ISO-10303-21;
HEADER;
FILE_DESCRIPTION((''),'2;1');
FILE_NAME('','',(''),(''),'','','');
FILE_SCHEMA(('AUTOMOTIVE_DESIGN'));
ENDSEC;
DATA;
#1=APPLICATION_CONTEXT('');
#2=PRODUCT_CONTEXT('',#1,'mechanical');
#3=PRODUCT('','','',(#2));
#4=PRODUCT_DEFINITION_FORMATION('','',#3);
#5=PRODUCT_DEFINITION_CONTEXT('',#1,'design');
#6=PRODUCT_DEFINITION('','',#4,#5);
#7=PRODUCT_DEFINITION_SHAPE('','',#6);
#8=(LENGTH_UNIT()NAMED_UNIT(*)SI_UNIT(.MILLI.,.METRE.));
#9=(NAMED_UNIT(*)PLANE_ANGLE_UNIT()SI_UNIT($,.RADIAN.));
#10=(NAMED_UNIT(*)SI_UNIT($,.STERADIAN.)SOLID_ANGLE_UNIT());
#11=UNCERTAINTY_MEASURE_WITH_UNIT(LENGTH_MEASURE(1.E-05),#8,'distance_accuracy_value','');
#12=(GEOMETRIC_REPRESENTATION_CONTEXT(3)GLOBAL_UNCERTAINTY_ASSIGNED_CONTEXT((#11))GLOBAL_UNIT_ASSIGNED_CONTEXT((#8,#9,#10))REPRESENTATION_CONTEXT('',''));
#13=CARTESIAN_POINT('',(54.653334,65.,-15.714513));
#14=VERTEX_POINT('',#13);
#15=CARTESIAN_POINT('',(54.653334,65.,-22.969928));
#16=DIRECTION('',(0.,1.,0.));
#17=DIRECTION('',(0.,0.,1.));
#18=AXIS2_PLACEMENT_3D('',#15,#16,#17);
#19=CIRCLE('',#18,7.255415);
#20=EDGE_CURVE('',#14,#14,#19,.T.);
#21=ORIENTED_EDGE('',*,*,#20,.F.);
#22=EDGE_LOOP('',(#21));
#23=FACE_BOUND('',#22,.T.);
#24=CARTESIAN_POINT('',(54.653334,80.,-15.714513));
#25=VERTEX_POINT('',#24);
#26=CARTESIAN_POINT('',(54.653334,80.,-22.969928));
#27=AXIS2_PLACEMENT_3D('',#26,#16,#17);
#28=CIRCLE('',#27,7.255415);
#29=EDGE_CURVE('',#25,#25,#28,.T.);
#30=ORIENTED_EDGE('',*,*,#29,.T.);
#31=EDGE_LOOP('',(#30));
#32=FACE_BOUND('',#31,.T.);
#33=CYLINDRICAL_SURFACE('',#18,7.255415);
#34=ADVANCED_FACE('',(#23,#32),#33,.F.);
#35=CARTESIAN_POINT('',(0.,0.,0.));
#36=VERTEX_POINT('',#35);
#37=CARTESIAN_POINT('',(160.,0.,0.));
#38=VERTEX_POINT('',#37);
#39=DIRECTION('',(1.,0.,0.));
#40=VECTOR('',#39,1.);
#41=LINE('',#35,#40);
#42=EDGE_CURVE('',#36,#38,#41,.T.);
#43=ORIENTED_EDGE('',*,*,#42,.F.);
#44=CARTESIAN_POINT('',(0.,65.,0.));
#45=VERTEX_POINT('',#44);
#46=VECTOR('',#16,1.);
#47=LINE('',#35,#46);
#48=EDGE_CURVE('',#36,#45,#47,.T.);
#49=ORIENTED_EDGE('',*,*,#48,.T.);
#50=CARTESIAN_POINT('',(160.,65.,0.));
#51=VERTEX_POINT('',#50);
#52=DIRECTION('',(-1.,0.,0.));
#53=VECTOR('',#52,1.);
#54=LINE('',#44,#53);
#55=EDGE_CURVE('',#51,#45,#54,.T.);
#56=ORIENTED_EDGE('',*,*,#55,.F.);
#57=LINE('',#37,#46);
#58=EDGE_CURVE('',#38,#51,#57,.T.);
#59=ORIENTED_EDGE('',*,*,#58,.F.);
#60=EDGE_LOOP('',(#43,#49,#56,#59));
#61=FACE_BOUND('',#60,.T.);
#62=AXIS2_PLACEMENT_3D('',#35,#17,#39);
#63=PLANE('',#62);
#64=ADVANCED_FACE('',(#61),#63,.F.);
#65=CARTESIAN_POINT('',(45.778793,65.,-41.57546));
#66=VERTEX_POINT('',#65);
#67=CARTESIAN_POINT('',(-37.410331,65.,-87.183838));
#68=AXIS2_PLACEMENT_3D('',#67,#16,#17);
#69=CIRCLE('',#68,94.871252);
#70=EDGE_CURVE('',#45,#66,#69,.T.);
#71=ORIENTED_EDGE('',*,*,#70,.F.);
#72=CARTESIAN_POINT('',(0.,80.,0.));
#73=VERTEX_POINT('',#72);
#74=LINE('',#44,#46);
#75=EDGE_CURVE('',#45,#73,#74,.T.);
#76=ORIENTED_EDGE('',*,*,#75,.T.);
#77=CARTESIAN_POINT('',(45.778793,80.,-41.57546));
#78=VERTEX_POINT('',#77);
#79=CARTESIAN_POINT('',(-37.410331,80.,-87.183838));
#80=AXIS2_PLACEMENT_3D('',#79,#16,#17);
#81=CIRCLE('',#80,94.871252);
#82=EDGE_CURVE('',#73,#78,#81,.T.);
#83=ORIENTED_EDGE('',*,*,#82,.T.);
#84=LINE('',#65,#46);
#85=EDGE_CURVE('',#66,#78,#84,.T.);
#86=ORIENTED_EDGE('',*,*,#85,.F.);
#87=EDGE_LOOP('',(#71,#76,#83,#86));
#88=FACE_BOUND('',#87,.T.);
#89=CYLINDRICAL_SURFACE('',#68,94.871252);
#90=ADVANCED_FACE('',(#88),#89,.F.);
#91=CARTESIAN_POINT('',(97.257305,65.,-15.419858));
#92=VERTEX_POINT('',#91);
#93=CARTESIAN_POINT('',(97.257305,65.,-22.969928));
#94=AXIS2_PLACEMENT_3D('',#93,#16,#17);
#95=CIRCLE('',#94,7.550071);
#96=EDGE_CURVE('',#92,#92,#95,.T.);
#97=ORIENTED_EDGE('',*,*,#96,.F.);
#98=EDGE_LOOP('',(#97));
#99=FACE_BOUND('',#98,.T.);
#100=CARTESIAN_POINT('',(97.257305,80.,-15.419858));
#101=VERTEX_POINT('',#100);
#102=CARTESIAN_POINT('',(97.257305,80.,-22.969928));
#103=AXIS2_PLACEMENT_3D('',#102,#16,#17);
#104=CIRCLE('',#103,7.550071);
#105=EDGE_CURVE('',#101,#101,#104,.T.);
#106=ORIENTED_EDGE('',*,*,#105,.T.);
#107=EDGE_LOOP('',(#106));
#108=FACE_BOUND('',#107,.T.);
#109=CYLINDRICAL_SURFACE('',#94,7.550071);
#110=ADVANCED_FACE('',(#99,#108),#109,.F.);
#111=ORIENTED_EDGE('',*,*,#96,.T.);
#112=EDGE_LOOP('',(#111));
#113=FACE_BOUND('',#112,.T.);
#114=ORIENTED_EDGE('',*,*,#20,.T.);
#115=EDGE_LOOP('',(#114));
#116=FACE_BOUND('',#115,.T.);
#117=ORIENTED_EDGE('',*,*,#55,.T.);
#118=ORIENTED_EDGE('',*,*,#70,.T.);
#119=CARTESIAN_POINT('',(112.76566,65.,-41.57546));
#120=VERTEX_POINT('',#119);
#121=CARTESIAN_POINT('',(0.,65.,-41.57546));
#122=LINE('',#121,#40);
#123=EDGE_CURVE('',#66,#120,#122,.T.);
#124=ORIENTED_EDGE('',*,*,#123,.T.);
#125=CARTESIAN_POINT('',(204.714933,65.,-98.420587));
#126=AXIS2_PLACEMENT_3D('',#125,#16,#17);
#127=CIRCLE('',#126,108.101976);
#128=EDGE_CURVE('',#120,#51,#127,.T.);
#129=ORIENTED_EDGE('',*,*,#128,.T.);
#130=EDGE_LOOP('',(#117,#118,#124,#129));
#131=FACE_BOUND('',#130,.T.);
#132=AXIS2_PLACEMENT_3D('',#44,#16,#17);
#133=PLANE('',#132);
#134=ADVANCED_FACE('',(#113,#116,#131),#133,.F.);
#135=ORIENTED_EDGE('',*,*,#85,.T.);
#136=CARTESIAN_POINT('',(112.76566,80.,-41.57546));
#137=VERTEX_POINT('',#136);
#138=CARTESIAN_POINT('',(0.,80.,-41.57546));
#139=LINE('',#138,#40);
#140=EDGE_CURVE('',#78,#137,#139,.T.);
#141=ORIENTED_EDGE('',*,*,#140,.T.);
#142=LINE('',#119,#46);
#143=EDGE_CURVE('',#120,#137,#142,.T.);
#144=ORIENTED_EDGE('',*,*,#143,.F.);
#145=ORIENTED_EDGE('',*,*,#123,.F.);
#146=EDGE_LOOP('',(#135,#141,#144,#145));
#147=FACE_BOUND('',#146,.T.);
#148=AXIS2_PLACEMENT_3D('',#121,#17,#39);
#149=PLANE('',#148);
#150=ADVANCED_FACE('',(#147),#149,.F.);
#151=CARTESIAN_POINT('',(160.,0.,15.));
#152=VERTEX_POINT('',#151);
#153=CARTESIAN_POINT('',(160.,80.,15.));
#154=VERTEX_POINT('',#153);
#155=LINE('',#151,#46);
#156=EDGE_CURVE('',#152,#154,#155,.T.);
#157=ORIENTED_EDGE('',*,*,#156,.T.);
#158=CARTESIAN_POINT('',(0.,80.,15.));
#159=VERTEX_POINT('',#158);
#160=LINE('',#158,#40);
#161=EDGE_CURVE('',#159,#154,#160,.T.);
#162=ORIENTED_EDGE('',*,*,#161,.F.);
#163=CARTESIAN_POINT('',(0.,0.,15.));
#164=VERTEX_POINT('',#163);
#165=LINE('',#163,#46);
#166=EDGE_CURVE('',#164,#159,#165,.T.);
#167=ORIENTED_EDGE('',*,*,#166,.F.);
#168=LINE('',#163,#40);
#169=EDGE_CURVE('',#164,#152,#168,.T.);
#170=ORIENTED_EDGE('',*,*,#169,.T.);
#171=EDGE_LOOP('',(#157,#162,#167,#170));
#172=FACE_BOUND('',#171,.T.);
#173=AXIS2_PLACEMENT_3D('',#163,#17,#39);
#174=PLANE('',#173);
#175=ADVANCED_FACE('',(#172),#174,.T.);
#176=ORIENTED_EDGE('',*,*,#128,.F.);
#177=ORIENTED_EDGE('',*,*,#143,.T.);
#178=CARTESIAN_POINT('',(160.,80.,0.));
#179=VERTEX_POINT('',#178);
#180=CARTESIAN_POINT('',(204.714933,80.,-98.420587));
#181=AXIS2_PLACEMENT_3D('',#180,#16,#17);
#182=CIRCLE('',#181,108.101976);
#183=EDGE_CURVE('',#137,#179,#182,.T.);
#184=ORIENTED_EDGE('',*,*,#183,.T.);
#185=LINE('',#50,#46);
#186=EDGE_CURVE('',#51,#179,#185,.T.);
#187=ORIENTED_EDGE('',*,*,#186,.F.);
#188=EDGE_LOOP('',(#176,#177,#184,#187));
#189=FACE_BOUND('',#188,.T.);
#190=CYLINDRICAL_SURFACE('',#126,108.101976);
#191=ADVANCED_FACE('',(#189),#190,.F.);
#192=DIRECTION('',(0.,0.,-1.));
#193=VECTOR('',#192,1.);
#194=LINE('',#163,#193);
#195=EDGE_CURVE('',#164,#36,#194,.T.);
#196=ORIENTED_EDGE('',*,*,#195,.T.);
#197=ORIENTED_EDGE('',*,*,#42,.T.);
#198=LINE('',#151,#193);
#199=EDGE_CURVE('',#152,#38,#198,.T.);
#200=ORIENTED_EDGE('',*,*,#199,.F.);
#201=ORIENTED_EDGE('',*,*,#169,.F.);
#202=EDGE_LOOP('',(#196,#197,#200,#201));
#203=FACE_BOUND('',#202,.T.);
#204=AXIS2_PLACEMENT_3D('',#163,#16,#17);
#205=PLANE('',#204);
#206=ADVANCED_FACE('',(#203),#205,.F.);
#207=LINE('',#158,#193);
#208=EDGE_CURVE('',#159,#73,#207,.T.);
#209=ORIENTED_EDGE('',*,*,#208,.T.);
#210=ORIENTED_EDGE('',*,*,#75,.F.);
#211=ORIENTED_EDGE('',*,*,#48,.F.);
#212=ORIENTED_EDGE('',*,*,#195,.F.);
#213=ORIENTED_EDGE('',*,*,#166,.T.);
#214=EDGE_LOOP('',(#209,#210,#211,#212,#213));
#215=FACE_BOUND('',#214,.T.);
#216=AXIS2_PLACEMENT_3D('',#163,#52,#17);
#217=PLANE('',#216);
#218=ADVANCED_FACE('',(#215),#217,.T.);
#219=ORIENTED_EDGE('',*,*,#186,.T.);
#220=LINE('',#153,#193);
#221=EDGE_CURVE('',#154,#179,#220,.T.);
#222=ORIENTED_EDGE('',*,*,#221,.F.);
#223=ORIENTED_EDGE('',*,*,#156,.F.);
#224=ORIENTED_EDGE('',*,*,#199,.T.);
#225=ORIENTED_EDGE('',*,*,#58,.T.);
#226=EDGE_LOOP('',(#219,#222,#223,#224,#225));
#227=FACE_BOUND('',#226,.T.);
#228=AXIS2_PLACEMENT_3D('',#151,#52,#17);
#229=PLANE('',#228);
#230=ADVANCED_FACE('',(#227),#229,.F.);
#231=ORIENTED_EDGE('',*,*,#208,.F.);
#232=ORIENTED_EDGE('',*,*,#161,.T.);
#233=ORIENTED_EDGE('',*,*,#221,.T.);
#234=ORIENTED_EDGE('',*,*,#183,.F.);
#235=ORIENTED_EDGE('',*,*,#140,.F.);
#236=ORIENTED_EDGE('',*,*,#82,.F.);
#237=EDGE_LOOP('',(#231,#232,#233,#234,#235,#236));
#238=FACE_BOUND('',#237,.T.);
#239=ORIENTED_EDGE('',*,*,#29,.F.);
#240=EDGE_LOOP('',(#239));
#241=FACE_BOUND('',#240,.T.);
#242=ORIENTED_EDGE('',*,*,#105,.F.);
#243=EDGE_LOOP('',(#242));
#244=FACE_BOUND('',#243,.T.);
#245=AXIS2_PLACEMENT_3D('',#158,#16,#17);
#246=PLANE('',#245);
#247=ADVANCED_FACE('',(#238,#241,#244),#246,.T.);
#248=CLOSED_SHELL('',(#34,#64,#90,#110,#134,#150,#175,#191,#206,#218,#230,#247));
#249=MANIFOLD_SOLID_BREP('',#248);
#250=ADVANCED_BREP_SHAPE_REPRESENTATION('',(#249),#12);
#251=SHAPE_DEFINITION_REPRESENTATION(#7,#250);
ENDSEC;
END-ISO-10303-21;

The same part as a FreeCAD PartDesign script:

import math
import FreeCAD as App
import Part
import Sketcher
from FreeCAD import Vector
Q = App.Units.Quantity

doc = App.newDocument("Part")
body = doc.addObject("PartDesign::Body", "Body")

sketch1 = body.newObject("Sketcher::SketchObject", "Sketch")
sketch1.AttachmentSupport = (doc.getObject("XY_Plane"), [""])
sketch1.MapMode = "FlatFace"
sketch1.addGeometry(Part.LineSegment(Vector(0, 80, 0), Vector(0, 0, 0)), False)
sketch1.addGeometry(Part.LineSegment(Vector(0, 0, 0), Vector(160, 0, 0)), False)
sketch1.addGeometry(Part.LineSegment(Vector(160, 0, 0), Vector(160, 80, 0)), False)
sketch1.addGeometry(Part.LineSegment(Vector(160, 80, 0), Vector(0, 80, 0)), False)
sketch1.addConstraint(Sketcher.Constraint("Coincident", 0, 2, 1, 1))
sketch1.addConstraint(Sketcher.Constraint("Coincident", 1, 2, 2, 1))
sketch1.addConstraint(Sketcher.Constraint("Coincident", 2, 2, 3, 1))
sketch1.addConstraint(Sketcher.Constraint("Coincident", 3, 2, 0, 1))
sketch1.addConstraint(Sketcher.Constraint("Vertical", 0))
sketch1.addConstraint(Sketcher.Constraint("Horizontal", 1))
sketch1.addConstraint(Sketcher.Constraint("Vertical", 2))
sketch1.addConstraint(Sketcher.Constraint("Horizontal", 3))
sketch1.addConstraint(Sketcher.Constraint("Coincident", 0, 2, -1, 1))
sketch1.addConstraint(Sketcher.Constraint("DistanceX", 1, 1, 1, 2, Q("160 mm")))
sketch1.addConstraint(Sketcher.Constraint("DistanceY", 0, 2, 0, 1, Q("80 mm")))
pad1 = body.newObject("PartDesign::Pad", "Pad")
pad1.Profile = sketch1
pad1.Length = 15

sketch2 = body.newObject("Sketcher::SketchObject", "Sketch001")
sketch2.AttachmentSupport = (doc.getObject("XZ_Plane"), [""])
sketch2.MapMode = "FlatFace"
sketch2.AttachmentOffset = App.Placement(Vector(0, 0, -80), App.Rotation())
sketch2.addGeometry(Part.ArcOfCircle(Part.Circle(Vector(204.714933, -98.420587, 0), Vector(0, 0, 1), 108.101976), math.radians(114.433485), math.radians(148.274702)), False)
sketch2.addGeometry(Part.LineSegment(Vector(112.76566, -41.57546, 0), Vector(45.778793, -41.57546, 0)), False)
sketch2.addGeometry(Part.ArcOfCircle(Part.Circle(Vector(-37.410331, -87.183838, 0), Vector(0, 0, 1), 94.871252), math.radians(28.733725), math.radians(66.77597)), False)
sketch2.addGeometry(Part.LineSegment(Vector(0, 0, 0), Vector(160, 0, 0)), False)
sketch2.addGeometry(Part.Circle(Vector(97.257305, -22.969928, 0), Vector(0, 0, 1), 7.550071), False)
sketch2.addGeometry(Part.Circle(Vector(54.653334, -22.969928, 0), Vector(0, 0, 1), 7.255415), False)
sketch2.addConstraint(Sketcher.Constraint("Coincident", 0, 2, 1, 1))
sketch2.addConstraint(Sketcher.Constraint("Coincident", 1, 2, 2, 1))
sketch2.addConstraint(Sketcher.Constraint("Coincident", 2, 2, 3, 1))
sketch2.addConstraint(Sketcher.Constraint("Coincident", 3, 2, 0, 1))
sketch2.addConstraint(Sketcher.Constraint("Horizontal", 1))
sketch2.addConstraint(Sketcher.Constraint("Horizontal", 3))
sketch2.addConstraint(Sketcher.Constraint("Coincident", 2, 2, -1, 1))
sketch2.addConstraint(Sketcher.Constraint("Horizontal", 4, 3, 5, 3))
sketch2.addConstraint(Sketcher.Constraint("DistanceX", 3, 1, 3, 2, Q("160 mm")))
sketch2.addConstraint(Sketcher.Constraint("Diameter", 4, Q("15.100142 mm")))
sketch2.addConstraint(Sketcher.Constraint("Diameter", 5, Q("14.510831 mm")))
sketch2.addConstraint(Sketcher.Constraint("Radius", 2, Q("94.871252 mm")))
sketch2.addConstraint(Sketcher.Constraint("Radius", 0, Q("108.101976 mm")))
sketch2.addConstraint(Sketcher.Constraint("DistanceX", 5, 3, 0, 3, Q("150.061599 mm")))
sketch2.addConstraint(Sketcher.Constraint("DistanceX", 1, 2, 1, 1, Q("66.986867 mm")))
sketch2.addConstraint(Sketcher.Constraint("DistanceX", 2, 3, -1, 1, Q("37.410331 mm")))
sketch2.addConstraint(Sketcher.Constraint("DistanceY", 4, 3, -1, 1, Q("22.969928 mm")))
sketch2.addConstraint(Sketcher.Constraint("DistanceX", -1, 1, 0, 2, Q("112.76566 mm")))
sketch2.addConstraint(Sketcher.Constraint("DistanceX", 5, 3, 4, 3, Q("42.603971 mm")))
pad2 = body.newObject("PartDesign::Pad", "Pad001")
pad2.Profile = sketch2
pad2.Length = 15

doc.recompute()
